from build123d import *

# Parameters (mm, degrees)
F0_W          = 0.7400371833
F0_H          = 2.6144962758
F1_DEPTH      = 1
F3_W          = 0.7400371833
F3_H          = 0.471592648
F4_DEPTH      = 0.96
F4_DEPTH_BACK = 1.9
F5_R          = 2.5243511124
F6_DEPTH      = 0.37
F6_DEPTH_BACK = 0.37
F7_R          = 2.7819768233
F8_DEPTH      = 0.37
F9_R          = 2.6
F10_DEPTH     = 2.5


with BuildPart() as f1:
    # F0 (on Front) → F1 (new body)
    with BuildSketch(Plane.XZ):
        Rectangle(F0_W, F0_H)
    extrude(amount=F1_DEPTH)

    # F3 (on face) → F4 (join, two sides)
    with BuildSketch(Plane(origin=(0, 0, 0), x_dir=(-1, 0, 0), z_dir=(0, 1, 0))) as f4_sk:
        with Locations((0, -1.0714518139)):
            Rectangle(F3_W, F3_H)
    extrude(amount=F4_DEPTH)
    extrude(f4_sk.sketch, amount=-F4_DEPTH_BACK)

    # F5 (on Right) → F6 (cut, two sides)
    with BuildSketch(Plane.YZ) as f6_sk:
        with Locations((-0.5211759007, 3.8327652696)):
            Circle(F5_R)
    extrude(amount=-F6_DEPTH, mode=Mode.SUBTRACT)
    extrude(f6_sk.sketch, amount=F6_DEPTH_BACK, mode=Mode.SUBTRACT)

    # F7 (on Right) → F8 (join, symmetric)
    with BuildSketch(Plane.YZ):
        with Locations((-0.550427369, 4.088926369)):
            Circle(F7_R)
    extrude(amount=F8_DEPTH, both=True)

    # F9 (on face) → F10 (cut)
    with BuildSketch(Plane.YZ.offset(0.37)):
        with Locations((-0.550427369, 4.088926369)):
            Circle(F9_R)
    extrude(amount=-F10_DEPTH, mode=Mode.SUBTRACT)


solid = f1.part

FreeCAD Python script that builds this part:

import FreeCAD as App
import Part
import Sketcher
from FreeCAD import Vector

doc = App.newDocument("Part")
body = doc.addObject("PartDesign::Body", "Body")

sketch1 = doc.addObject("Sketcher::SketchObject", "Sketch")
body.addObject(sketch1)
sketch1.AttachmentSupport = (doc.XZ_Plane, [""])
sketch1.MapMode = "FlatFace"
sketch1.addGeometry([
    Part.LineSegment(Vector(-0.4, 1.3, 0), Vector(-0.4, -1.3, 0)),
    Part.LineSegment(Vector(-0.4, -1.3, 0), Vector(0.4, -1.3, 0)),
    Part.LineSegment(Vector(0.4, -1.3, 0), Vector(0.4, 1.3, 0)),
    Part.LineSegment(Vector(0.4, 1.3, 0), Vector(-0.4, 1.3, 0)),
], False)
sketch1.addConstraint([
    Sketcher.Constraint("Coincident", 0, 2, 1, 1),
    Sketcher.Constraint("Coincident", 1, 2, 2, 1),
    Sketcher.Constraint("Coincident", 2, 2, 3, 1),
    Sketcher.Constraint("Coincident", 3, 2, 0, 1),
    Sketcher.Constraint("Vertical", 0),
    Sketcher.Constraint("Horizontal", 1),
    Sketcher.Constraint("Vertical", 2),
    Sketcher.Constraint("Horizontal", 3),
    Sketcher.Constraint("Symmetric", 0, 2, 2, 2, -1, 1),
    Sketcher.Constraint("DistanceX", 1, 1, 1, 2, 0.740037),
    Sketcher.Constraint("DistanceY", 0, 2, 0, 1, 2.614496),
])
pad1 = doc.addObject("PartDesign::Pad", "Pad")
body.addObject(pad1)
pad1.Profile = sketch1
pad1.Length = 1

sketch2 = doc.addObject("Sketcher::SketchObject", "Sketch001")
body.addObject(sketch2)
sketch2.AttachmentSupport = (doc.XZ_Plane, [""])
sketch2.MapMode = "FlatFace"
sketch2.addGeometry([
    Part.LineSegment(Vector(0.37, -0.84, 0), Vector(0.37, -1.31, 0)),
    Part.LineSegment(Vector(0.37, -1.31, 0), Vector(-0.37, -1.31, 0)),
    Part.LineSegment(Vector(-0.37, -1.31, 0), Vector(-0.37, -0.84, 0)),
    Part.LineSegment(Vector(-0.37, -0.84, 0), Vector(0.37, -0.84, 0)),
], False)
sketch2.addConstraint([
    Sketcher.Constraint("Coincident", 0, 2, 1, 1),
    Sketcher.Constraint("Coincident", 1, 2, 2, 1),
    Sketcher.Constraint("Coincident", 2, 2, 3, 1),
    Sketcher.Constraint("Coincident", 3, 2, 0, 1),
    Sketcher.Constraint("Vertical", 0),
    Sketcher.Constraint("Horizontal", 1),
    Sketcher.Constraint("Vertical", 2),
    Sketcher.Constraint("Horizontal", 3),
    Sketcher.Constraint("DistanceX", 1, 2, 1, 1, 0.740037),
    Sketcher.Constraint("DistanceY", 0, 2, 0, 1, 0.471593),
    Sketcher.Constraint("DistanceX", -1, 1, 0, 2, 0.370019),
    Sketcher.Constraint("DistanceY", 0, 2, -1, 1, 1.307248),
])
pad2 = doc.addObject("PartDesign::Pad", "Pad001")
body.addObject(pad2)
pad2.Profile = sketch2
pad2.Type = "TwoLengths"
pad2.Length = 0.96
pad2.Length2 = 1.9
pad2.Reversed = True

sketch3 = doc.addObject("Sketcher::SketchObject", "Sketch002")
body.addObject(sketch3)
sketch3.AttachmentSupport = (doc.YZ_Plane, [""])
sketch3.MapMode = "FlatFace"
sketch3.addGeometry(Part.Circle(Vector(-0.5, 3.8, 0), Vector(0, 0, 1), 2.5), False)
sketch3.addConstraint([
    Sketcher.Constraint("Diameter", 0, 5.048702),
    Sketcher.Constraint("DistanceX", 0, 3, -1, 1, 0.521176),
    Sketcher.Constraint("DistanceY", -1, 1, 0, 3, 3.832765),
])
pocket1 = doc.addObject("PartDesign::Pocket", "Pocket")
body.addObject(pocket1)
pocket1.Profile = sketch3
pocket1.Type = "ThroughAll"
pocket1.Midplane = True

sketch4 = doc.addObject("Sketcher::SketchObject", "Sketch003")
body.addObject(sketch4)
sketch4.AttachmentSupport = (doc.YZ_Plane, [""])
sketch4.MapMode = "FlatFace"
sketch4.addGeometry(Part.Circle(Vector(-0.6, 4.1, 0), Vector(0, 0, 1), 2.8), False)
sketch4.addConstraint([
    Sketcher.Constraint("Diameter", 0, 5.563954),
    Sketcher.Constraint("DistanceX", 0, 3, -1, 1, 0.550427),
    Sketcher.Constraint("DistanceY", -1, 1, 0, 3, 4.088926),
])
pad3 = doc.addObject("PartDesign::Pad", "Pad002")
body.addObject(pad3)
pad3.Profile = sketch4
pad3.Length = 0.74
pad3.Midplane = True

sketch5 = doc.addObject("Sketcher::SketchObject", "Sketch004")
body.addObject(sketch5)
sketch5.AttachmentSupport = (doc.YZ_Plane, [""])
sketch5.MapMode = "FlatFace"
sketch5.AttachmentOffset = App.Placement(Vector(0, 0, 0.37), App.Rotation())
sketch5.addGeometry(Part.Circle(Vector(-0.6, 4.1, 0), Vector(0, 0, 1), 2.6), False)
sketch5.addConstraint([
    Sketcher.Constraint("Diameter", 0, 5.2),
    Sketcher.Constraint("DistanceX", 0, 3, -1, 1, 0.550427),
    Sketcher.Constraint("DistanceY", -1, 1, 0, 3, 4.088926),
])
pocket2 = doc.addObject("PartDesign::Pocket", "Pocket001")
body.addObject(pocket2)
pocket2.Profile = sketch5
pocket2.Length = 2.5

doc.recompute()
